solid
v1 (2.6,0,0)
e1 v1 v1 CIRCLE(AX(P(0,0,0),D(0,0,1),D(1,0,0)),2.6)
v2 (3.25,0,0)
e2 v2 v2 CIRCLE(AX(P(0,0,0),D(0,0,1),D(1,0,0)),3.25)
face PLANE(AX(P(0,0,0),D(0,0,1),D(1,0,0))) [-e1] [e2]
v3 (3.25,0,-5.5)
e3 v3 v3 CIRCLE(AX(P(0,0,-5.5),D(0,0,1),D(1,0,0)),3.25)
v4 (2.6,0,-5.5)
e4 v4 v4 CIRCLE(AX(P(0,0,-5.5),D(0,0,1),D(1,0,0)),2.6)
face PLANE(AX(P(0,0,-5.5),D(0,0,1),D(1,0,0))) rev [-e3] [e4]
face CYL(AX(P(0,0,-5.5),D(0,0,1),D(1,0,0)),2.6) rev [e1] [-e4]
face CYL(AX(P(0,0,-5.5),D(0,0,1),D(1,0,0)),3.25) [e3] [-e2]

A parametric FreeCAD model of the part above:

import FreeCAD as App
import Part
import Sketcher
from FreeCAD import Vector
Q = App.Units.Quantity

doc = App.newDocument("Part")
body = doc.addObject("PartDesign::Body", "Body")

sketch1 = body.newObject("Sketcher::SketchObject", "Sketch")
sketch1.AttachmentSupport = (doc.getObject("XY_Plane"), [""])
sketch1.MapMode = "FlatFace"
sketch1.addGeometry([
    Part.Circle(Vector(0, 0, 0), Vector(0, 0, 1), 3.25),
    Part.Circle(Vector(0, 0, 0), Vector(0, 0, 1), 2.6),
], False)
sketch1.addConstraint([
    Sketcher.Constraint("Coincident", 0, 3, -1, 1),
    Sketcher.Constraint("Coincident", 1, 3, -1, 1),
    Sketcher.Constraint("Diameter", 0, Q("6.5 mm")),
    Sketcher.Constraint("Diameter", 1, Q("5.2 mm")),
])
pad1 = body.newObject("PartDesign::Pad", "Pad")
pad1.Profile = sketch1
pad1.Length = 5.5
pad1.Reversed = True

doc.recompute()
